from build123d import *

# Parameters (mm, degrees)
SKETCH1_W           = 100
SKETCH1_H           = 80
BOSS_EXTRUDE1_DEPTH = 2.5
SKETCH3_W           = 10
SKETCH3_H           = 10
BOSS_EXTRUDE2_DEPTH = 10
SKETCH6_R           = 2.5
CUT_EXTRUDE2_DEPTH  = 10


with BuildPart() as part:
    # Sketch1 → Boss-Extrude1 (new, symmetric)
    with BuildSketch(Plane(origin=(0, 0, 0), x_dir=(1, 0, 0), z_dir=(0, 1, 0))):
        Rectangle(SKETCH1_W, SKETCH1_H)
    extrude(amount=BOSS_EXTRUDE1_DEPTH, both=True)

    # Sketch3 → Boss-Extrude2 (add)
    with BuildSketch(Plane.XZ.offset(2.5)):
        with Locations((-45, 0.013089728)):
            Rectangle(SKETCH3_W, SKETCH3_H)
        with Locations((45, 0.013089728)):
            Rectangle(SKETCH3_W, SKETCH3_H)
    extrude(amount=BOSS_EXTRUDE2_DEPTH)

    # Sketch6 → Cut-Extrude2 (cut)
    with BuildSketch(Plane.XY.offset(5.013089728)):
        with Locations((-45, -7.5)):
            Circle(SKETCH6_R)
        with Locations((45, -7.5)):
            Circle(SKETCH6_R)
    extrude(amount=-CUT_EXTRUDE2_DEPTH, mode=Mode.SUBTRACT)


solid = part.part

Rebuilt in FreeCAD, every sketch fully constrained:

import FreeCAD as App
import Part
import Sketcher
Q = App.Units.Quantity


def add_polygon(sketch, points):
    """Adds a closed chain of lines whose ends are joined by coincident constraints."""
    first, n = sketch.GeometryCount, len(points)
    for a, b in zip(points, points[1:] + points[:1]):
        sketch.addGeometry(Part.LineSegment(App.Vector(*a, 0), App.Vector(*b, 0)), False)
    for i in range(n):
        sketch.addConstraint(Sketcher.Constraint("Coincident", first + i, 2, first + (i + 1) % n, 1))

doc = App.newDocument("Part")
body = doc.addObject("PartDesign::Body", "Body")

sketch1 = doc.addObject("Sketcher::SketchObject", "Sketch")
body.addObject(sketch1)
sketch1.AttachmentSupport = (doc.XZ_Plane, [""])
sketch1.MapMode = "FlatFace"
add_polygon(sketch1, [(-50, -40), (-50, 40), (50, 40), (50, -40)])
sketch1.addConstraint(Sketcher.Constraint("Vertical", 0))
sketch1.addConstraint(Sketcher.Constraint("Horizontal", 1))
sketch1.addConstraint(Sketcher.Constraint("Vertical", 2))
sketch1.addConstraint(Sketcher.Constraint("Horizontal", 3))
sketch1.addConstraint(Sketcher.Constraint("Symmetric", 0, 2, 2, 2, -1, 1))
sketch1.addConstraint(Sketcher.Constraint("DistanceX", 1, 1, 1, 2, Q("100 mm")))
sketch1.addConstraint(Sketcher.Constraint("DistanceY", 0, 1, 0, 2, Q("80 mm")))
pad1 = doc.addObject("PartDesign::Pad", "Pad")
body.addObject(pad1)
pad1.Profile = sketch1
pad1.Length = 5
pad1.Midplane = True

sketch2 = doc.addObject("Sketcher::SketchObject", "Sketch001")
body.addObject(sketch2)
sketch2.AttachmentSupport = (doc.XZ_Plane, [""])
sketch2.MapMode = "FlatFace"
sketch2.AttachmentOffset = App.Placement(App.Vector(0, 0, 2.5), App.Rotation())
add_polygon(sketch2, [(-50, 5.01309), (-50, -4.98691), (-40, -4.98691), (-40, 5.01309)])
add_polygon(sketch2, [(40, 5.01309), (40, -4.98691), (50, -4.98691), (50, 5.01309)])
sketch2.addConstraint(Sketcher.Constraint("Vertical", 0))
sketch2.addConstraint(Sketcher.Constraint("Horizontal", 1))
sketch2.addConstraint(Sketcher.Constraint("Vertical", 2))
sketch2.addConstraint(Sketcher.Constraint("Horizontal", 3))
sketch2.addConstraint(Sketcher.Constraint("Vertical", 4))
sketch2.addConstraint(Sketcher.Constraint("Horizontal", 5))
sketch2.addConstraint(Sketcher.Constraint("Vertical", 6))
sketch2.addConstraint(Sketcher.Constraint("Horizontal", 7))
sketch2.addConstraint(Sketcher.Constraint("Symmetric", 1, 2, 4, 2, -2))
sketch2.addConstraint(Sketcher.Constraint("Symmetric", 3, 2, 6, 2, -2))
sketch2.addConstraint(Sketcher.Constraint("Equal", 7, 0))
sketch2.addConstraint(Sketcher.Constraint("DistanceX", 1, 1, 1, 2, Q("10 mm")))
sketch2.addConstraint(Sketcher.Constraint("DistanceX", 0, 2, -1, 1, Q("50 mm")))
sketch2.addConstraint(Sketcher.Constraint("DistanceY", 0, 2, -1, 1, Q("4.98691 mm")))
pad2 = doc.addObject("PartDesign::Pad", "Pad001")
body.addObject(pad2)
pad2.Profile = sketch2
pad2.Length = 10

sketch3 = doc.addObject("Sketcher::SketchObject", "Sketch002")
body.addObject(sketch3)
sketch3.AttachmentSupport = (doc.XY_Plane, [""])
sketch3.MapMode = "FlatFace"
sketch3.AttachmentOffset = App.Placement(App.Vector(0, 0, 5.01309), App.Rotation())
sketch3.addGeometry(Part.Circle(App.Vector(-45, -7.5, 0), App.Vector(0, 0, 1), 2.5), False)
sketch3.addGeometry(Part.Circle(App.Vector(45, -7.5, 0), App.Vector(0, 0, 1), 2.5), False)
sketch3.addConstraint(Sketcher.Constraint("Equal", 0, 1))
sketch3.addConstraint(Sketcher.Constraint("Symmetric", 0, 3, 1, 3, -2))
sketch3.addConstraint(Sketcher.Constraint("Diameter", 0, Q("5 mm")))
sketch3.addConstraint(Sketcher.Constraint("DistanceX", 0, 3, -1, 1, Q("45 mm")))
sketch3.addConstraint(Sketcher.Constraint("DistanceY", 0, 3, -1, 1, Q("7.5 mm")))
pocket1 = doc.addObject("PartDesign::Pocket", "Pocket")
body.addObject(pocket1)
pocket1.Profile = sketch3
pocket1.Length = 10

doc.recompute()
